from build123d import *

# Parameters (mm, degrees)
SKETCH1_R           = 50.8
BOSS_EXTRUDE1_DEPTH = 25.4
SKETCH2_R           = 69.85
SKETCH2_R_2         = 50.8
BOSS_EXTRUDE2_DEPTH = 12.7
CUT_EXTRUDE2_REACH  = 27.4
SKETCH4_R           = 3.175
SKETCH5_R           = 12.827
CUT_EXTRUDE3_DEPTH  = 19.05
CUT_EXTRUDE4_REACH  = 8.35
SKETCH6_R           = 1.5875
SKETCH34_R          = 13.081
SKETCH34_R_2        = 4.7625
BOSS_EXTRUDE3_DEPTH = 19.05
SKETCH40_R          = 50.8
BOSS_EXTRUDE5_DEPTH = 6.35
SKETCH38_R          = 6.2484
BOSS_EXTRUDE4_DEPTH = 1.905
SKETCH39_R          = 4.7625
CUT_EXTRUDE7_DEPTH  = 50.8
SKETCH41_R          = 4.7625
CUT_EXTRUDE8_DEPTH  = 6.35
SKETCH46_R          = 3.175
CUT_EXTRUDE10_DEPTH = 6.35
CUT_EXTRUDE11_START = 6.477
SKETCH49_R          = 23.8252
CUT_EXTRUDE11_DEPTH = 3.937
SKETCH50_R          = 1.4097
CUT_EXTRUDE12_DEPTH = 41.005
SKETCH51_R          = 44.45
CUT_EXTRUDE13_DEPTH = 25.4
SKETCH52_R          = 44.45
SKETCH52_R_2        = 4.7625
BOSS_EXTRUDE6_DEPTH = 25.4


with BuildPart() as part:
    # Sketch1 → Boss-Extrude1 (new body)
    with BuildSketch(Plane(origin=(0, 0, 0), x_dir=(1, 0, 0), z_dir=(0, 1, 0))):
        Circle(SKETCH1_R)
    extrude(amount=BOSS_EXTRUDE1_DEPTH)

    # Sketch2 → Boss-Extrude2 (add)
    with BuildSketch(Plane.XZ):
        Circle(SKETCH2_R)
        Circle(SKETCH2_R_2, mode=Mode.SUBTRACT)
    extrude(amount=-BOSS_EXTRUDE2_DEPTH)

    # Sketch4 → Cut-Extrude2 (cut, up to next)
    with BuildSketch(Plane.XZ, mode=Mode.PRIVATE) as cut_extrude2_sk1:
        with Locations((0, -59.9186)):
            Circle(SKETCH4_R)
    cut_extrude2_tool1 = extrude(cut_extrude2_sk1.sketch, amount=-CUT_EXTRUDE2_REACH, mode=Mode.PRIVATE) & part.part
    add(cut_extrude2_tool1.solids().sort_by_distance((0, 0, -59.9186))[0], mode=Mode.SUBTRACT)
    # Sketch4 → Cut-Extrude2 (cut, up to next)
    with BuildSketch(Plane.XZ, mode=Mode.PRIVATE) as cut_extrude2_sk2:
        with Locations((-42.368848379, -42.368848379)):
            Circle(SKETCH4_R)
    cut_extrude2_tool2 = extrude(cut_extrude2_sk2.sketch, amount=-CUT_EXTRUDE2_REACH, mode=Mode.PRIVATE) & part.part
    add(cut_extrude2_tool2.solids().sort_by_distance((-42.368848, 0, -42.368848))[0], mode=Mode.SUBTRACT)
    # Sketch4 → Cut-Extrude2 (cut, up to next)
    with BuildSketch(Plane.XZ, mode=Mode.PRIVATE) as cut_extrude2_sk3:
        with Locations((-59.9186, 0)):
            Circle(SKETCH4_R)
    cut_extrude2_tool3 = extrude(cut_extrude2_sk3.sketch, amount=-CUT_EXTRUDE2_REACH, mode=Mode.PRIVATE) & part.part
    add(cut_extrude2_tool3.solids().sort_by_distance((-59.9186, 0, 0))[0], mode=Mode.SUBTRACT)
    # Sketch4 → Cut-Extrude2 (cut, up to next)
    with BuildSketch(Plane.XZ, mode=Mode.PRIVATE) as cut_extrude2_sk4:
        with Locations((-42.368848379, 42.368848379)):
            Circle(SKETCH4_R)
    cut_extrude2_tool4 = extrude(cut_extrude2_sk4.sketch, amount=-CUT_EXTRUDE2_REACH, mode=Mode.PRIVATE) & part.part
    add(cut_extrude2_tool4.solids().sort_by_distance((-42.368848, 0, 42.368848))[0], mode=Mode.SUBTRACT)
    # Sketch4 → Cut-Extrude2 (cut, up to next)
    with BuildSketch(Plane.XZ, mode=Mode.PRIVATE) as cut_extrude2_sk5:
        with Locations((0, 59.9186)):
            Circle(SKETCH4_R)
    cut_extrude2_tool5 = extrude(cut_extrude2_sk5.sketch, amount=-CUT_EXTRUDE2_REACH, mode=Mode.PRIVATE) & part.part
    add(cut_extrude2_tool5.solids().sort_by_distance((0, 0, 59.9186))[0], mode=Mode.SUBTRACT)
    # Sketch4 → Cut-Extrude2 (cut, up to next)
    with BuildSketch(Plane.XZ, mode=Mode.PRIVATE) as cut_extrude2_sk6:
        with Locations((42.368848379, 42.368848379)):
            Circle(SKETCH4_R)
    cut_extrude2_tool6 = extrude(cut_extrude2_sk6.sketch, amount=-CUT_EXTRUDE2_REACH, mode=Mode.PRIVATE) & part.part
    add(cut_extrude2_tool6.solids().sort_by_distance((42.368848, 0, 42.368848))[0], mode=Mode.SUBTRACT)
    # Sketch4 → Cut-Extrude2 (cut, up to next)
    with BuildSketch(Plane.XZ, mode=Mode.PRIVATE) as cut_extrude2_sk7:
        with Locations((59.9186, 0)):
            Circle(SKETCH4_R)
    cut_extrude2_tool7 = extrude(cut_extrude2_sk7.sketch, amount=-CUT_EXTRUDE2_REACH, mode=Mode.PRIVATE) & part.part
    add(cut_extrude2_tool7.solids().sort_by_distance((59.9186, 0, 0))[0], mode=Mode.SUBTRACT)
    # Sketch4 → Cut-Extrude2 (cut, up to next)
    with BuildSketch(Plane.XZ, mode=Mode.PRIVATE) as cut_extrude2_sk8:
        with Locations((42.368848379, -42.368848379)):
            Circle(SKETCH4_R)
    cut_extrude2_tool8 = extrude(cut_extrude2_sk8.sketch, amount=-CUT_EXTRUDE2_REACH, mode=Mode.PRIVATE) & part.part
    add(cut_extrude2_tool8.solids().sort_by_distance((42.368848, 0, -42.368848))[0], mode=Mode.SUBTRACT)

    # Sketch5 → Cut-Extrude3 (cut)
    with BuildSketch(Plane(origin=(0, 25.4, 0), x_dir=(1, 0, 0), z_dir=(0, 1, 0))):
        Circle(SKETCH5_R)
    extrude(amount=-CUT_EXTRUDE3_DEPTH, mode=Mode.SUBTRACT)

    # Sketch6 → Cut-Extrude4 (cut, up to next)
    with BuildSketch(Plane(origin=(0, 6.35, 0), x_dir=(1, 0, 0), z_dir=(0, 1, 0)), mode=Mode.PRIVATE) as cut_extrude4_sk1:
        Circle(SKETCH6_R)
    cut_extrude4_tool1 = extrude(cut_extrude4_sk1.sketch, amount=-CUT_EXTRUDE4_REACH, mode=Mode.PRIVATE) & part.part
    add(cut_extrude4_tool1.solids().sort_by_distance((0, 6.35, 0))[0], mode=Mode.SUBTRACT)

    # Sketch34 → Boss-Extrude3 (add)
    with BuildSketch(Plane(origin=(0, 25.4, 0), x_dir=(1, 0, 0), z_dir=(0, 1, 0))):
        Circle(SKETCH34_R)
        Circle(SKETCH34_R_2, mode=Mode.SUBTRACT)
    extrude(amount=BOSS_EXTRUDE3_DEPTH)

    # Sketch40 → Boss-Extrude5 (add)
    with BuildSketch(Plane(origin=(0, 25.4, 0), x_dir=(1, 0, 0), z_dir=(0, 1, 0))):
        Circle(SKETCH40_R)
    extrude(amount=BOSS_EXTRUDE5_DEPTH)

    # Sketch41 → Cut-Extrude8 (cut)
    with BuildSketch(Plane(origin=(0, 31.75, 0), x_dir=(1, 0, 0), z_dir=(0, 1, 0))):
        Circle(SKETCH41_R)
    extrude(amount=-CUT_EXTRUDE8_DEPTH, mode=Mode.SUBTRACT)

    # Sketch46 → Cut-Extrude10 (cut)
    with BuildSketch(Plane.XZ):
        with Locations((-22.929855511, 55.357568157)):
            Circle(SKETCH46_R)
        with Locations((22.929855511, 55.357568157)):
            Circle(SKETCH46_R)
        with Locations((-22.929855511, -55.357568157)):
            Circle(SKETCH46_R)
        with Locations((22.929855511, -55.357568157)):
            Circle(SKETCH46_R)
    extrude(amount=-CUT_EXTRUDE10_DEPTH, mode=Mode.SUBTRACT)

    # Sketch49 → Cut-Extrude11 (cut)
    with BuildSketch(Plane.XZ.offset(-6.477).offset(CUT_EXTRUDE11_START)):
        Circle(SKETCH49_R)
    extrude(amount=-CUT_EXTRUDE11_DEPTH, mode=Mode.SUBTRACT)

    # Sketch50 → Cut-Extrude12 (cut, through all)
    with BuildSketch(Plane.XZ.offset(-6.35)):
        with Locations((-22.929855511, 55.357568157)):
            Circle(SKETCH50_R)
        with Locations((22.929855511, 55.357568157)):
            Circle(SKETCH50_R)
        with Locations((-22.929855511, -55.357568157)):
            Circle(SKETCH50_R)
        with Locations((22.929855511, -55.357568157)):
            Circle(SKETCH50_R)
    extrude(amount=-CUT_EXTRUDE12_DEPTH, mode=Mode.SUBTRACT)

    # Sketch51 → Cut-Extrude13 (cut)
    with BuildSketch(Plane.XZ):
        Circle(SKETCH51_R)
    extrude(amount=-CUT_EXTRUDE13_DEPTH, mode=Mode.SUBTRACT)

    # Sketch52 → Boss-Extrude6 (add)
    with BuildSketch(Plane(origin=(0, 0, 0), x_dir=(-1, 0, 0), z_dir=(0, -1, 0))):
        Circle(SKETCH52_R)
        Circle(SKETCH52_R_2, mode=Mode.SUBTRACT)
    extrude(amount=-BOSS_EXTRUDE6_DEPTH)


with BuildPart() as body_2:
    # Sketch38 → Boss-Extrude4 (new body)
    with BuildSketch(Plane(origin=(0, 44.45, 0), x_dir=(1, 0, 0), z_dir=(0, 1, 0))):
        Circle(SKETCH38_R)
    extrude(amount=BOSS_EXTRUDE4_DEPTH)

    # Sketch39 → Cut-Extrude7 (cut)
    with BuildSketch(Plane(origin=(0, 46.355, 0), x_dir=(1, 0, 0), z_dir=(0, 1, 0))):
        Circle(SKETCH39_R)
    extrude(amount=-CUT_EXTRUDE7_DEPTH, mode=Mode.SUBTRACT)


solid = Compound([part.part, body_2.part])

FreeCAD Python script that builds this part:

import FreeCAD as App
import Part
import Sketcher

V = App.Vector
Q = App.Units.Quantity

doc = App.newDocument("Part")
params = doc.addObject("Spreadsheet::Sheet", "Params")
for row, (alias, value) in enumerate([
    ("sketch1_diameter", "4 in"),
    ("pad1_length", "1 in"),
    ("sketch2_diameter", "4 in"),
    ("sketch2_diameter2", "5.5 in"),
    ("pad2_length", "0.5 in"),
    ("sketch3_diameter", "0.25 in"),
    ("sketch4_diameter", "0.25 in"),
    ("sketch5_diameter", "0.25 in"),
    ("sketch6_diameter", "0.25 in"),
    ("sketch7_diameter", "0.25 in"),
    ("sketch8_diameter", "0.25 in"),
    ("sketch9_diameter", "0.25 in"),
    ("sketch10_diameter", "0.25 in"),
    ("sketch11_diameter", "1.01 in"),
    ("pocket9_length", "0.75 in"),
    ("sketch12_diameter", "0.125 in"),
    ("sketch13_diameter", "1.03 in"),
    ("sketch13_diameter2", "0.375 in"),
    ("pad3_length", "0.75 in"),
    ("sketch14_diameter", "4 in"),
    ("pad4_length", "0.25 in"),
    ("sketch15_diameter", "0.375 in"),
    ("pocket11_length", "0.25 in"),
    ("sketch16_diameter", "0.25 in"),
    ("pocket12_length", "0.25 in"),
    ("sketch17_diameter", "1.876 in"),
    ("pocket13_length", "0.155 in"),
    ("sketch18_diameter", "0.111 in"),
    ("sketch19_diameter", "3.5 in"),
    ("pocket15_length", "1 in"),
    ("sketch20_diameter", "3.5 in"),
    ("sketch20_diameter2", "0.375 in"),
    ("pad5_length", "1 in"),
    ("sketch21_diameter", "0.492 in"),
    ("pad6_length", "0.075 in"),
    ("sketch22_diameter", "0.375 in"),
    ("pocket16_length", "2 in"),
], start=1):
    params.set(f"A{row}", alias)
    params.set(f"B{row}", "=" + value)
    params.setAlias(f"B{row}", alias)

body = doc.addObject("PartDesign::Body", "Body")

sketch1 = body.newObject("Sketcher::SketchObject", "Sketch")
sketch1.AttachmentSupport = (doc.getObject("XZ_Plane"), [""])
sketch1.MapMode = "FlatFace"
sketch1.addGeometry(Part.Circle(V(0, 0, 0), V(0, 0, 1), 51), False)
sketch1.addConstraint([
    Sketcher.Constraint("Coincident", 0, 3, -1, 1),
    Sketcher.Constraint("Diameter", 0, Q("4 in")),
])
sketch1.setExpression("Constraints[1]", "Params.sketch1_diameter")
pad1 = body.newObject("PartDesign::Pad", "Pad")
pad1.Profile = sketch1
pad1.setExpression("Length", "Params.pad1_length")
pad1.Reversed = True

sketch2 = body.newObject("Sketcher::SketchObject", "Sketch001")
sketch2.AttachmentSupport = (doc.getObject("XZ_Plane"), [""])
sketch2.MapMode = "FlatFace"
sketch2.addGeometry([
    Part.Circle(V(0, 0, 0), V(0, 0, 1), 70),
    Part.Circle(V(0, 0, 0), V(0, 0, 1), 51),
], False)
sketch2.addConstraint([
    Sketcher.Constraint("Coincident", 0, 3, -1, 1),
    Sketcher.Constraint("Coincident", 1, 3, -1, 1),
    Sketcher.Constraint("Diameter", 1, Q("4 in")),
    Sketcher.Constraint("Diameter", 0, Q("5.5 in")),
])
sketch2.setExpression("Constraints[2]", "Params.sketch2_diameter")
sketch2.setExpression("Constraints[3]", "Params.sketch2_diameter2")
pad2 = body.newObject("PartDesign::Pad", "Pad001")
pad2.Profile = sketch2
pad2.setExpression("Length", "Params.pad2_length")
pad2.Reversed = True

sketch3 = body.newObject("Sketcher::SketchObject", "Sketch002")
sketch3.AttachmentSupport = (doc.getObject("XZ_Plane"), [""])
sketch3.MapMode = "FlatFace"
sketch3.addGeometry(Part.Circle(V(0, -59.9, 0), V(0, 0, 1), 3.2), False)
sketch3.addConstraint([
    Sketcher.Constraint("PointOnObject", 0, 3, -2),
    Sketcher.Constraint("Diameter", 0, Q("0.25 in")),
    Sketcher.Constraint("DistanceY", 0, 3, -1, 1, Q("2.359 in")),
])
sketch3.setExpression("Constraints[1]", "Params.sketch3_diameter")
pocket1 = body.newObject("PartDesign::Pocket", "Pocket")
pocket1.Profile = sketch3
pocket1.Type = "UpToFirst"

sketch4 = body.newObject("Sketcher::SketchObject", "Sketch003")
sketch4.AttachmentSupport = (doc.getObject("XZ_Plane"), [""])
sketch4.MapMode = "FlatFace"
sketch4.addGeometry(Part.Circle(V(-42.4, -42.4, 0), V(0, 0, 1), 3.2), False)
sketch4.addConstraint([
    Sketcher.Constraint("Diameter", 0, Q("0.25 in")),
    Sketcher.Constraint("DistanceX", 0, 3, -1, 1, 42.368848),
    Sketcher.Constraint("DistanceY", 0, 3, -1, 1, 42.368848),
])
sketch4.setExpression("Constraints[0]", "Params.sketch4_diameter")
pocket2 = body.newObject("PartDesign::Pocket", "Pocket001")
pocket2.Profile = sketch4
pocket2.Type = "UpToFirst"

sketch5 = body.newObject("Sketcher::SketchObject", "Sketch004")
sketch5.AttachmentSupport = (doc.getObject("XZ_Plane"), [""])
sketch5.MapMode = "FlatFace"
sketch5.addGeometry(Part.Circle(V(-59.9, 0, 0), V(0, 0, 1), 3.2), False)
sketch5.addConstraint([
    Sketcher.Constraint("PointOnObject", 0, 3, -1),
    Sketcher.Constraint("Diameter", 0, Q("0.25 in")),
    Sketcher.Constraint("DistanceX", 0, 3, -1, 1, Q("2.359 in")),
])
sketch5.setExpression("Constraints[1]", "Params.sketch5_diameter")
pocket3 = body.newObject("PartDesign::Pocket", "Pocket002")
pocket3.Profile = sketch5
pocket3.Type = "UpToFirst"

sketch6 = body.newObject("Sketcher::SketchObject", "Sketch005")
sketch6.AttachmentSupport = (doc.getObject("XZ_Plane"), [""])
sketch6.MapMode = "FlatFace"
sketch6.addGeometry(Part.Circle(V(-42.4, 42.4, 0), V(0, 0, 1), 3.2), False)
sketch6.addConstraint([
    Sketcher.Constraint("Diameter", 0, Q("0.25 in")),
    Sketcher.Constraint("DistanceX", 0, 3, -1, 1, 42.368848),
    Sketcher.Constraint("DistanceY", -1, 1, 0, 3, 42.368848),
])
sketch6.setExpression("Constraints[0]", "Params.sketch6_diameter")
pocket4 = body.newObject("PartDesign::Pocket", "Pocket003")
pocket4.Profile = sketch6
pocket4.Type = "UpToFirst"

sketch7 = body.newObject("Sketcher::SketchObject", "Sketch006")
sketch7.AttachmentSupport = (doc.getObject("XZ_Plane"), [""])
sketch7.MapMode = "FlatFace"
sketch7.addGeometry(Part.Circle(V(0, 59.9, 0), V(0, 0, 1), 3.2), False)
sketch7.addConstraint([
    Sketcher.Constraint("PointOnObject", 0, 3, -2),
    Sketcher.Constraint("Diameter", 0, Q("0.25 in")),
    Sketcher.Constraint("DistanceY", -1, 1, 0, 3, Q("2.359 in")),
])
sketch7.setExpression("Constraints[1]", "Params.sketch7_diameter")
pocket5 = body.newObject("PartDesign::Pocket", "Pocket004")
pocket5.Profile = sketch7
pocket5.Type = "UpToFirst"

sketch8 = body.newObject("Sketcher::SketchObject", "Sketch007")
sketch8.AttachmentSupport = (doc.getObject("XZ_Plane"), [""])
sketch8.MapMode = "FlatFace"
sketch8.addGeometry(Part.Circle(V(42.4, 42.4, 0), V(0, 0, 1), 3.2), False)
sketch8.addConstraint([
    Sketcher.Constraint("Diameter", 0, Q("0.25 in")),
    Sketcher.Constraint("DistanceX", -1, 1, 0, 3, 42.368848),
    Sketcher.Constraint("DistanceY", -1, 1, 0, 3, 42.368848),
])
sketch8.setExpression("Constraints[0]", "Params.sketch8_diameter")
pocket6 = body.newObject("PartDesign::Pocket", "Pocket005")
pocket6.Profile = sketch8
pocket6.Type = "UpToFirst"

sketch9 = body.newObject("Sketcher::SketchObject", "Sketch008")
sketch9.AttachmentSupport = (doc.getObject("XZ_Plane"), [""])
sketch9.MapMode = "FlatFace"
sketch9.addGeometry(Part.Circle(V(59.9, 0, 0), V(0, 0, 1), 3.2), False)
sketch9.addConstraint([
    Sketcher.Constraint("PointOnObject", 0, 3, -1),
    Sketcher.Constraint("Diameter", 0, Q("0.25 in")),
    Sketcher.Constraint("DistanceX", -1, 1, 0, 3, Q("2.359 in")),
])
sketch9.setExpression("Constraints[1]", "Params.sketch9_diameter")
pocket7 = body.newObject("PartDesign::Pocket", "Pocket006")
pocket7.Profile = sketch9
pocket7.Type = "UpToFirst"

sketch10 = body.newObject("Sketcher::SketchObject", "Sketch009")
sketch10.AttachmentSupport = (doc.getObject("XZ_Plane"), [""])
sketch10.MapMode = "FlatFace"
sketch10.addGeometry(Part.Circle(V(42.4, -42.4, 0), V(0, 0, 1), 3.2), False)
sketch10.addConstraint([
    Sketcher.Constraint("Diameter", 0, Q("0.25 in")),
    Sketcher.Constraint("DistanceX", -1, 1, 0, 3, 42.368848),
    Sketcher.Constraint("DistanceY", 0, 3, -1, 1, 42.368848),
])
sketch10.setExpression("Constraints[0]", "Params.sketch10_diameter")
pocket8 = body.newObject("PartDesign::Pocket", "Pocket007")
pocket8.Profile = sketch10
pocket8.Type = "UpToFirst"

sketch11 = body.newObject("Sketcher::SketchObject", "Sketch010")
sketch11.AttachmentSupport = (doc.getObject("XZ_Plane"), [""])
sketch11.MapMode = "FlatFace"
sketch11.AttachmentOffset = App.Placement(V(0, 0, -1 * 25.4), App.Rotation())
sketch11.addGeometry(Part.Circle(V(0, 0, 0), V(0, 0, 1), 13), False)
sketch11.addConstraint([
    Sketcher.Constraint("Coincident", 0, 3, -1, 1),
    Sketcher.Constraint("Diameter", 0, Q("1.01 in")),
])
sketch11.setExpression("Constraints[1]", "Params.sketch11_diameter")
pocket9 = body.newObject("PartDesign::Pocket", "Pocket008")
pocket9.Profile = sketch11
pocket9.setExpression("Length", "Params.pocket9_length")
pocket9.Reversed = True

sketch12 = body.newObject("Sketcher::SketchObject", "Sketch011")
sketch12.AttachmentSupport = (doc.getObject("XZ_Plane"), [""])
sketch12.MapMode = "FlatFace"
sketch12.AttachmentOffset = App.Placement(V(0, 0, -0.25 * 25.4), App.Rotation())
sketch12.addGeometry(Part.Circle(V(0, 0, 0), V(0, 0, 1), 1.6), False)
sketch12.addConstraint([
    Sketcher.Constraint("Coincident", 0, 3, -1, 1),
    Sketcher.Constraint("Diameter", 0, Q("0.125 in")),
])
sketch12.setExpression("Constraints[1]", "Params.sketch12_diameter")
pocket10 = body.newObject("PartDesign::Pocket", "Pocket009")
pocket10.Profile = sketch12
pocket10.Type = "UpToFirst"
pocket10.Reversed = True

sketch13 = body.newObject("Sketcher::SketchObject", "Sketch012")
sketch13.AttachmentSupport = (doc.getObject("XZ_Plane"), [""])
sketch13.MapMode = "FlatFace"
sketch13.AttachmentOffset = App.Placement(V(0, 0, -1 * 25.4), App.Rotation())
sketch13.addGeometry([
    Part.Circle(V(0, 0, 0), V(0, 0, 1), 13.1),
    Part.Circle(V(0, 0, 0), V(0, 0, 1), 4.8),
], False)
sketch13.addConstraint([
    Sketcher.Constraint("Coincident", 0, 3, -1, 1),
    Sketcher.Constraint("Coincident", 1, 3, -1, 1),
    Sketcher.Constraint("Diameter", 0, Q("1.03 in")),
    Sketcher.Constraint("Diameter", 1, Q("0.375 in")),
])
sketch13.setExpression("Constraints[2]", "Params.sketch13_diameter")
sketch13.setExpression("Constraints[3]", "Params.sketch13_diameter2")
pad3 = body.newObject("PartDesign::Pad", "Pad002")
pad3.Profile = sketch13
pad3.setExpression("Length", "Params.pad3_length")
pad3.Reversed = True

sketch14 = body.newObject("Sketcher::SketchObject", "Sketch013")
sketch14.AttachmentSupport = (doc.getObject("XZ_Plane"), [""])
sketch14.MapMode = "FlatFace"
sketch14.AttachmentOffset = App.Placement(V(0, 0, -1 * 25.4), App.Rotation())
sketch14.addGeometry(Part.Circle(V(0, 0, 0), V(0, 0, 1), 51), False)
sketch14.addConstraint([
    Sketcher.Constraint("Coincident", 0, 3, -1, 1),
    Sketcher.Constraint("Diameter", 0, Q("4 in")),
])
sketch14.setExpression("Constraints[1]", "Params.sketch14_diameter")
pad4 = body.newObject("PartDesign::Pad", "Pad003")
pad4.Profile = sketch14
pad4.setExpression("Length", "Params.pad4_length")
pad4.Reversed = True

sketch15 = body.newObject("Sketcher::SketchObject", "Sketch014")
sketch15.AttachmentSupport = (doc.getObject("XZ_Plane"), [""])
sketch15.MapMode = "FlatFace"
sketch15.AttachmentOffset = App.Placement(V(0, 0, -1.25 * 25.4), App.Rotation())
sketch15.addGeometry(Part.Circle(V(0, 0, 0), V(0, 0, 1), 4.8), False)
sketch15.addConstraint([
    Sketcher.Constraint("Coincident", 0, 3, -1, 1),
    Sketcher.Constraint("Diameter", 0, Q("0.375 in")),
])
sketch15.setExpression("Constraints[1]", "Params.sketch15_diameter")
pocket11 = body.newObject("PartDesign::Pocket", "Pocket010")
pocket11.Profile = sketch15
pocket11.setExpression("Length", "Params.pocket11_length")
pocket11.Reversed = True

sketch16 = body.newObject("Sketcher::SketchObject", "Sketch015")
sketch16.AttachmentSupport = (doc.getObject("XZ_Plane"), [""])
sketch16.MapMode = "FlatFace"
sketch16.addGeometry([
    Part.Circle(V(-22.9, 55.4, 0), V(0, 0, 1), 3.2),
    Part.Circle(V(22.9, 55.4, 0), V(0, 0, 1), 3.2),
    Part.Circle(V(-22.9, -55.4, 0), V(0, 0, 1), 3.2),
    Part.Circle(V(22.9, -55.4, 0), V(0, 0, 1), 3.2),
], False)
sketch16.addConstraint([
    Sketcher.Constraint("Equal", 0, 1),
    Sketcher.Constraint("Equal", 1, 2),
    Sketcher.Constraint("Equal", 2, 3),
    Sketcher.Constraint("Symmetric", 1, 3, 2, 3, -1, 1),
    Sketcher.Constraint("Symmetric", 0, 3, 3, 3, -1, 1),
    Sketcher.Constraint("Symmetric", 0, 3, 1, 3, -2),
    Sketcher.Constraint("Diameter", 0, Q("0.25 in")),
    Sketcher.Constraint("DistanceY", -1, 1, 0, 3, 55.357568),
    Sketcher.Constraint("DistanceX", 0, 3, 1, 3, 45.859711),
])
sketch16.setExpression("Constraints[6]", "Params.sketch16_diameter")
pocket12 = body.newObject("PartDesign::Pocket", "Pocket011")
pocket12.Profile = sketch16
pocket12.setExpression("Length", "Params.pocket12_length")

sketch17 = body.newObject("Sketcher::SketchObject", "Sketch016")
sketch17.AttachmentSupport = (doc.getObject("XZ_Plane"), [""])
sketch17.MapMode = "FlatFace"
sketch17.addGeometry(Part.Circle(V(0, 0, 0), V(0, 0, 1), 24), False)
sketch17.addConstraint([
    Sketcher.Constraint("Coincident", 0, 3, -1, 1),
    Sketcher.Constraint("Diameter", 0, Q("1.876 in")),
])
sketch17.setExpression("Constraints[1]", "Params.sketch17_diameter")
pocket13 = body.newObject("PartDesign::Pocket", "Pocket012")
pocket13.Profile = sketch17
pocket13.setExpression("Length", "Params.pocket13_length")

sketch18 = body.newObject("Sketcher::SketchObject", "Sketch017")
sketch18.AttachmentSupport = (doc.getObject("XZ_Plane"), [""])
sketch18.MapMode = "FlatFace"
sketch18.AttachmentOffset = App.Placement(V(0, 0, -0.25 * 25.4), App.Rotation())
sketch18.addGeometry([
    Part.Circle(V(-22.9, 55.4, 0), V(0, 0, 1), 1.4),
    Part.Circle(V(22.9, 55.4, 0), V(0, 0, 1), 1.4),
    Part.Circle(V(-22.9, -55.4, 0), V(0, 0, 1), 1.4),
    Part.Circle(V(22.9, -55.4, 0), V(0, 0, 1), 1.4),
], False)
sketch18.addConstraint([
    Sketcher.Constraint("Equal", 0, 1),
    Sketcher.Constraint("Equal", 1, 2),
    Sketcher.Constraint("Equal", 2, 3),
    Sketcher.Constraint("Symmetric", 1, 3, 2, 3, -1, 1),
    Sketcher.Constraint("Symmetric", 0, 3, 3, 3, -1, 1),
    Sketcher.Constraint("Symmetric", 0, 3, 1, 3, -2),
    Sketcher.Constraint("Diameter", 0, Q("0.111 in")),
    Sketcher.Constraint("DistanceY", -1, 1, 0, 3, 55.357568),
    Sketcher.Constraint("DistanceX", 0, 3, 1, 3, 45.859711),
])
sketch18.setExpression("Constraints[6]", "Params.sketch18_diameter")
pocket14 = body.newObject("PartDesign::Pocket", "Pocket013")
pocket14.Profile = sketch18
pocket14.Type = "ThroughAll"

sketch19 = body.newObject("Sketcher::SketchObject", "Sketch018")
sketch19.AttachmentSupport = (doc.getObject("XZ_Plane"), [""])
sketch19.MapMode = "FlatFace"
sketch19.addGeometry(Part.Circle(V(0, 0, 0), V(0, 0, 1), 44), False)
sketch19.addConstraint([
    Sketcher.Constraint("Coincident", 0, 3, -1, 1),
    Sketcher.Constraint("Diameter", 0, Q("3.5 in")),
])
sketch19.setExpression("Constraints[1]", "Params.sketch19_diameter")
pocket15 = body.newObject("PartDesign::Pocket", "Pocket014")
pocket15.Profile = sketch19
pocket15.setExpression("Length", "Params.pocket15_length")

sketch20 = body.newObject("Sketcher::SketchObject", "Sketch019")
sketch20.AttachmentSupport = (doc.getObject("XZ_Plane"), [""])
sketch20.MapMode = "FlatFace"
sketch20.addGeometry([
    Part.Circle(V(0, 0, 0), V(0, 0, 1), 44.5),
    Part.Circle(V(0, 0, 0), V(0, 0, 1), 4.8),
], False)
sketch20.addConstraint([
    Sketcher.Constraint("Coincident", 0, 3, -1, 1),
    Sketcher.Constraint("Coincident", 1, 3, -1, 1),
    Sketcher.Constraint("Diameter", 0, Q("3.5 in")),
    Sketcher.Constraint("Diameter", 1, Q("0.375 in")),
])
sketch20.setExpression("Constraints[2]", "Params.sketch20_diameter")
sketch20.setExpression("Constraints[3]", "Params.sketch20_diameter2")
pad5 = body.newObject("PartDesign::Pad", "Pad004")
pad5.Profile = sketch20
pad5.setExpression("Length", "Params.pad5_length")
pad5.Reversed = True
body2 = doc.addObject("PartDesign::Body", "Body001")

sketch21 = body2.newObject("Sketcher::SketchObject", "Sketch020")
sketch21.AttachmentSupport = (doc.getObject("XZ_Plane001"), [""])
sketch21.MapMode = "FlatFace"
sketch21.AttachmentOffset = App.Placement(V(0, 0, -1.75 * 25.4), App.Rotation())
sketch21.addGeometry(Part.Circle(V(0, 0, 0), V(0, 0, 1), 6), False)
sketch21.addConstraint([
    Sketcher.Constraint("Coincident", 0, 3, -1, 1),
    Sketcher.Constraint("Diameter", 0, Q("0.492 in")),
])
sketch21.setExpression("Constraints[1]", "Params.sketch21_diameter")
pad6 = body2.newObject("PartDesign::Pad", "Pad005")
pad6.Profile = sketch21
pad6.setExpression("Length", "Params.pad6_length")
pad6.Reversed = True

sketch22 = body2.newObject("Sketcher::SketchObject", "Sketch021")
sketch22.AttachmentSupport = (doc.getObject("XZ_Plane001"), [""])
sketch22.MapMode = "FlatFace"
sketch22.AttachmentOffset = App.Placement(V(0, 0, -1.825 * 25.4), App.Rotation())
sketch22.addGeometry(Part.Circle(V(0, 0, 0), V(0, 0, 1), 4.8), False)
sketch22.addConstraint([
    Sketcher.Constraint("Coincident", 0, 3, -1, 1),
    Sketcher.Constraint("Diameter", 0, Q("0.375 in")),
])
sketch22.setExpression("Constraints[1]", "Params.sketch22_diameter")
pocket16 = body2.newObject("PartDesign::Pocket", "Pocket015")
pocket16.Profile = sketch22
pocket16.setExpression("Length", "Params.pocket16_length")
pocket16.Reversed = True

doc.recompute()
